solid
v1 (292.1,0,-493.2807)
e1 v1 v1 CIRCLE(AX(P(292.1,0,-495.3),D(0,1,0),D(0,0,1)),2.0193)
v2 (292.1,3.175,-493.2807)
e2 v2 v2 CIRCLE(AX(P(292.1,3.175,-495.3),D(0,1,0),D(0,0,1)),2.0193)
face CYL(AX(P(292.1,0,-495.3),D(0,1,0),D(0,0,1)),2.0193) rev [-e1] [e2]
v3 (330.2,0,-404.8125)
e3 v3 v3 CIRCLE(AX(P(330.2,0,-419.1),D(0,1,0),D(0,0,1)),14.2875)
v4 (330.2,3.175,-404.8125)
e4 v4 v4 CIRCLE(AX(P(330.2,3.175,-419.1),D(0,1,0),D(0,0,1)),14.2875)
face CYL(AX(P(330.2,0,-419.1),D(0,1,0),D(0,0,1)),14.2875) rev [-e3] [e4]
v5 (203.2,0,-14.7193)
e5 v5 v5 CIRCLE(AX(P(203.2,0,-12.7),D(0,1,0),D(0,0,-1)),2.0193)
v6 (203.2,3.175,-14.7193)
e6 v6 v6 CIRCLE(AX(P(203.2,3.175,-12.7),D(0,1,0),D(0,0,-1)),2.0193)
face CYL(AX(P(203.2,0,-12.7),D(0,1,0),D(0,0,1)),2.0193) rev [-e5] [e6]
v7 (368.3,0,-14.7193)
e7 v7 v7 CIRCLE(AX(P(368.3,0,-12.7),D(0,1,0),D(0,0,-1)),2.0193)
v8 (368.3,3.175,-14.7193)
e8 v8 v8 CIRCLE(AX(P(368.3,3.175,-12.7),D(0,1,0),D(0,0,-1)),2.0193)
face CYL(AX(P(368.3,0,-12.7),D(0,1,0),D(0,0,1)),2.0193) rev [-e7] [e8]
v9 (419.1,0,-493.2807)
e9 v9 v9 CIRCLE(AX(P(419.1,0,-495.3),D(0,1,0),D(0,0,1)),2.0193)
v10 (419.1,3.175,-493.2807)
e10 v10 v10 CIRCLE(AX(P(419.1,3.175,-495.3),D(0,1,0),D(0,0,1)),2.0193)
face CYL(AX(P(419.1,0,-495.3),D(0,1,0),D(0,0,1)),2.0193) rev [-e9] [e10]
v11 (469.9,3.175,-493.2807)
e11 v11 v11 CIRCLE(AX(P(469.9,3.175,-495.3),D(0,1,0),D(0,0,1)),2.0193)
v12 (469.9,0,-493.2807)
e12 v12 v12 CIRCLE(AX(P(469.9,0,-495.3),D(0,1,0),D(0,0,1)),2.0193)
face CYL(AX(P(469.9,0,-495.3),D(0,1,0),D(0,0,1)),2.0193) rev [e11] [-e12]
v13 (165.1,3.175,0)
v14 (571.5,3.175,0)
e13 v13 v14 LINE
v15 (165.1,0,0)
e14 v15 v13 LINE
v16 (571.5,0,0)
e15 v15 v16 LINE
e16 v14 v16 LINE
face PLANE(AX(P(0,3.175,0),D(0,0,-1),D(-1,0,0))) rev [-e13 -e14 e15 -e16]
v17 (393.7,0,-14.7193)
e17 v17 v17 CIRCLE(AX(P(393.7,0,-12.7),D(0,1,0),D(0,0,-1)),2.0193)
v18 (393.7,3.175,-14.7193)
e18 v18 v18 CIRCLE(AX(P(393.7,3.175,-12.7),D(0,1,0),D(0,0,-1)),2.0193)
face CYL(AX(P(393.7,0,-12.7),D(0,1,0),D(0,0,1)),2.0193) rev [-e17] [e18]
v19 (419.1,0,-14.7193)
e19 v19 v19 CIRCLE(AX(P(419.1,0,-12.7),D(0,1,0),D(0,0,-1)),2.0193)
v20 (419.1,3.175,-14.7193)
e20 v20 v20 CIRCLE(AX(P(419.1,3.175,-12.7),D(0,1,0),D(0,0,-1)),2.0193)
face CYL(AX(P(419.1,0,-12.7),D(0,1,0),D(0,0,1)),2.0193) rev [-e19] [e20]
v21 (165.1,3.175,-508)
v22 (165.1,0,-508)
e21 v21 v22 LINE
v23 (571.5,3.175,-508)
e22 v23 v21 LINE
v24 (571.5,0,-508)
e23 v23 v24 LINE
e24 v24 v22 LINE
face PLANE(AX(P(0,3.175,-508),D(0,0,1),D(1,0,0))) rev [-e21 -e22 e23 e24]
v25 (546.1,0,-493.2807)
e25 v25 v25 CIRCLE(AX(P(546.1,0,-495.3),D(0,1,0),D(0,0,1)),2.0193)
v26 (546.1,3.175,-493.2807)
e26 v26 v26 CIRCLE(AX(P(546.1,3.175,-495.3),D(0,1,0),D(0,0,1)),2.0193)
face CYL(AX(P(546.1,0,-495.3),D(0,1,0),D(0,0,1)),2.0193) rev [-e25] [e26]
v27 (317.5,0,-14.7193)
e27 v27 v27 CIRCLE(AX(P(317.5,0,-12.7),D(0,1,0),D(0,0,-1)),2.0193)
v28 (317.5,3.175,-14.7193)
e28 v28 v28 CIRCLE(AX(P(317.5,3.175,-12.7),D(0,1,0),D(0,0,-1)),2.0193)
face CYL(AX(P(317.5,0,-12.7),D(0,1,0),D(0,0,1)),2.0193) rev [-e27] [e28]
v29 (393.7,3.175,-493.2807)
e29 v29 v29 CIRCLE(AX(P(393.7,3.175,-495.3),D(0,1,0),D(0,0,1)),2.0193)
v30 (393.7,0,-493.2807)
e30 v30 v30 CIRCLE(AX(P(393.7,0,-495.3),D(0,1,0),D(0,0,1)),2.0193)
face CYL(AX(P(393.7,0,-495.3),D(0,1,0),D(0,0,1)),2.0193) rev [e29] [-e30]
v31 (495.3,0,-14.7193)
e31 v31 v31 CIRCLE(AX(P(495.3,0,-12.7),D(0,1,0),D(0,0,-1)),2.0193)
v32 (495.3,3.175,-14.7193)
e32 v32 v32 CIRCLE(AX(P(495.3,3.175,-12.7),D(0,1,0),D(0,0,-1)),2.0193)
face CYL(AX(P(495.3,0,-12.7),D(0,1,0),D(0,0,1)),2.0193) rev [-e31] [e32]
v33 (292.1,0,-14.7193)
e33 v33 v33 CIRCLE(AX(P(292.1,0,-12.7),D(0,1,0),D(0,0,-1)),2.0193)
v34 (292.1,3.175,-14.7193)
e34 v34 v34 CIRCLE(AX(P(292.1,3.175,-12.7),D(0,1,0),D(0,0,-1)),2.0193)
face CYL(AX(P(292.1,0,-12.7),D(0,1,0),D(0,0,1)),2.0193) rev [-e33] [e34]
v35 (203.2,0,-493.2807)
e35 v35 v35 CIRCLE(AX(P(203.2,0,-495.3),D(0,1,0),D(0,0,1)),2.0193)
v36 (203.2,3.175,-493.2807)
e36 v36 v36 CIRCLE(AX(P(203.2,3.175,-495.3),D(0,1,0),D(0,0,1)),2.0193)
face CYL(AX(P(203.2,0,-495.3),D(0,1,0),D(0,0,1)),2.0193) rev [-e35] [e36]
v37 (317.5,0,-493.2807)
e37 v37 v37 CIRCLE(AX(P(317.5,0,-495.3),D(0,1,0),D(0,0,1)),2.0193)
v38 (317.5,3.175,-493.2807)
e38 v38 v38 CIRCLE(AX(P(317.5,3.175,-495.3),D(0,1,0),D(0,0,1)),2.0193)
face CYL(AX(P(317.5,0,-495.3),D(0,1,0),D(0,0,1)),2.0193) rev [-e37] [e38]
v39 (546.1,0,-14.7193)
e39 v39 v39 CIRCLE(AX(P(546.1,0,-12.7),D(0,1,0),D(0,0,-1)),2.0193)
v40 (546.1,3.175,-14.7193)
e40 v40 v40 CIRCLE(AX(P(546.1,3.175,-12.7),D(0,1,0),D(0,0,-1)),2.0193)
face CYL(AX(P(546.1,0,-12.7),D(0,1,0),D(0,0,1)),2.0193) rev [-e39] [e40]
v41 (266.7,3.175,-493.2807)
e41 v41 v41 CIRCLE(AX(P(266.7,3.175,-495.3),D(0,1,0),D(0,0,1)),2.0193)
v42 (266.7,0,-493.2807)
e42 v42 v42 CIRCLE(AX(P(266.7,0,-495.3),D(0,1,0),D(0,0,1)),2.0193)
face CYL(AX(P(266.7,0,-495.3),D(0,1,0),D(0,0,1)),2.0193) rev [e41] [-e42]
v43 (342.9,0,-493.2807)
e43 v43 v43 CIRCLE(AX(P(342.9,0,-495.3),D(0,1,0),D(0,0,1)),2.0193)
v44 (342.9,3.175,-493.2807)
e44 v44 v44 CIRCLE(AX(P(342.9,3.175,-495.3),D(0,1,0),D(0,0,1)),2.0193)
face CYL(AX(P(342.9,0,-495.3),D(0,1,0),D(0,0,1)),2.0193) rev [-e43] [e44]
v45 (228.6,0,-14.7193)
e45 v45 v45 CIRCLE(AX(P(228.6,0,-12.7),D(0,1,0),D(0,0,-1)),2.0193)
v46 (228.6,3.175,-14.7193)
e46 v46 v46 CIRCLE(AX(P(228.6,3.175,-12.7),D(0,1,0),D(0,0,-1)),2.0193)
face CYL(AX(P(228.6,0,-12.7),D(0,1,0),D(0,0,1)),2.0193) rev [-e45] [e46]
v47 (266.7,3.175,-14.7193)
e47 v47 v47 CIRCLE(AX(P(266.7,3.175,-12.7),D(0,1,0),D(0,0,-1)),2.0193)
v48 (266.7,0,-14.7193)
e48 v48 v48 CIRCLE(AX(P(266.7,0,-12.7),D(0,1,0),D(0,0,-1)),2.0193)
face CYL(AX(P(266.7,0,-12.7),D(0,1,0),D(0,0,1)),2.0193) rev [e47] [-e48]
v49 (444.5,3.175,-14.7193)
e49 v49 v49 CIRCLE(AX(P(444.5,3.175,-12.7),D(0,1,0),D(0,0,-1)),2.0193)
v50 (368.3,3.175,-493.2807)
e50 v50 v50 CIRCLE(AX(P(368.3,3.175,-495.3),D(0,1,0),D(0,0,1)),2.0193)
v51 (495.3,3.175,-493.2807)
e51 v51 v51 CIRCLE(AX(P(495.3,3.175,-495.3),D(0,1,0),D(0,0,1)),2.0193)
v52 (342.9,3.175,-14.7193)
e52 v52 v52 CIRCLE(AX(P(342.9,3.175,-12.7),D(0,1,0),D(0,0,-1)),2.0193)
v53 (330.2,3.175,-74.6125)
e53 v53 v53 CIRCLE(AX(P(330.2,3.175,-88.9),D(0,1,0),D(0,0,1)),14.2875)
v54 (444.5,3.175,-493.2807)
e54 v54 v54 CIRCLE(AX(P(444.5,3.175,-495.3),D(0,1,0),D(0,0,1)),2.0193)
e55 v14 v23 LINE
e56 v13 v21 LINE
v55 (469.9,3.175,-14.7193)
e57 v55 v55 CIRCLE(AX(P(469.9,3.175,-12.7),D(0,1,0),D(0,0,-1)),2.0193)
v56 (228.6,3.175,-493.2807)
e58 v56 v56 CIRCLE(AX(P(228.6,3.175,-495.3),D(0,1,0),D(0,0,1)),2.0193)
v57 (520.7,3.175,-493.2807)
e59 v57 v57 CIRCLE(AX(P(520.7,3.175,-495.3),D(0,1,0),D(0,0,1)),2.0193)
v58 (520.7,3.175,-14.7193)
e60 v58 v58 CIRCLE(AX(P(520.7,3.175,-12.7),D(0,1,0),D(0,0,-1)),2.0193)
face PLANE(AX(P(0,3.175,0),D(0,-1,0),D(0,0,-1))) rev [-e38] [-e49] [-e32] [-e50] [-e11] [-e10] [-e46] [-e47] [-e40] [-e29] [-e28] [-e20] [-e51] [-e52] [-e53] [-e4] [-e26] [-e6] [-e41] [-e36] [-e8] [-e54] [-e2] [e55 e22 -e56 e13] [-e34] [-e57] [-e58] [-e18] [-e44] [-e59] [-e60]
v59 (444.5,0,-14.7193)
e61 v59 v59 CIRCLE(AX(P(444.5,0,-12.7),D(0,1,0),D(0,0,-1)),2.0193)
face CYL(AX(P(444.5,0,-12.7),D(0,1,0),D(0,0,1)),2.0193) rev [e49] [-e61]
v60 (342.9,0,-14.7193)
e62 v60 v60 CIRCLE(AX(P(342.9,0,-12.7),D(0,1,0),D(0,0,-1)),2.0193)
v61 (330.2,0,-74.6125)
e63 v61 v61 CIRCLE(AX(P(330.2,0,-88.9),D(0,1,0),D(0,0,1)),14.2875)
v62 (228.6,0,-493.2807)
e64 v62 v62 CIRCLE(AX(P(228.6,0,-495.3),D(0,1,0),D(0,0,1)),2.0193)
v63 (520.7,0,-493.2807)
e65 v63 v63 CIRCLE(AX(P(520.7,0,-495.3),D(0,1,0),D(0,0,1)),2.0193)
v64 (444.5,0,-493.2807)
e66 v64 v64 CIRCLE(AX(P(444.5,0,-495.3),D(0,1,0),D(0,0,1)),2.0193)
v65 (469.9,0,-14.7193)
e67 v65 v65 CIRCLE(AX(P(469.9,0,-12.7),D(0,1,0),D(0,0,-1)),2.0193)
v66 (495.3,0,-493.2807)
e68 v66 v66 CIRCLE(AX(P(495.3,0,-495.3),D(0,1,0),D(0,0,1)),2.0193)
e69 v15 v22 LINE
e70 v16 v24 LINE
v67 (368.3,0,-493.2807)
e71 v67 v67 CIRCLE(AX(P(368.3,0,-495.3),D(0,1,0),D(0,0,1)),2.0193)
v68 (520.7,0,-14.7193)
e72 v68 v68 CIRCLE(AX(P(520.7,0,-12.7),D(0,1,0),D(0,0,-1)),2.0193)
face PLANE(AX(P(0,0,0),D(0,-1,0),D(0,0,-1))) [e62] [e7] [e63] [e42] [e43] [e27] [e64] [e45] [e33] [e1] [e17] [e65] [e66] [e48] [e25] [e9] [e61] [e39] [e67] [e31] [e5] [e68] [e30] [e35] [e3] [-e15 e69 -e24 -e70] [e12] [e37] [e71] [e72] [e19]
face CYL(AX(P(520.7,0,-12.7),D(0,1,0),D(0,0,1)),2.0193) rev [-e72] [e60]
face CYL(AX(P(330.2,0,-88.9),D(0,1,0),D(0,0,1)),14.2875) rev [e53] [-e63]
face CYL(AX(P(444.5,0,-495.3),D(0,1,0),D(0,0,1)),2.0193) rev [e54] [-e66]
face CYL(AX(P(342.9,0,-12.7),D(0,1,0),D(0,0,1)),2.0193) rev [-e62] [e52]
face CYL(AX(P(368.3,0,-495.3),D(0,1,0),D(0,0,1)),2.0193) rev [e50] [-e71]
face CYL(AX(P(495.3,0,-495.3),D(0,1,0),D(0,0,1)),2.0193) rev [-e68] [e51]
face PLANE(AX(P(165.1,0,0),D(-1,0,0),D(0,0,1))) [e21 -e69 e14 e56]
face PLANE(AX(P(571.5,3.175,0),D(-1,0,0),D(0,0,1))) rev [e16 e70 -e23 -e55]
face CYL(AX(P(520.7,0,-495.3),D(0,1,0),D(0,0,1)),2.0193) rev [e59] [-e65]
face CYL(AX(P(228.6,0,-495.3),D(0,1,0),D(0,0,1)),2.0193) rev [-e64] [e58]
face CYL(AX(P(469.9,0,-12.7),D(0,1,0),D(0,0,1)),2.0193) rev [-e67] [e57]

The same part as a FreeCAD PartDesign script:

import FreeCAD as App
import Part
import Sketcher
Q = App.Units.Quantity


def add_polygon(sketch, points):
    """Adds a closed chain of lines whose ends are joined by coincident constraints."""
    first, n = sketch.GeometryCount, len(points)
    for a, b in zip(points, points[1:] + points[:1]):
        sketch.addGeometry(Part.LineSegment(App.Vector(*a, 0), App.Vector(*b, 0)), False)
    for i in range(n):
        sketch.addConstraint(Sketcher.Constraint("Coincident", first + i, 2, first + (i + 1) % n, 1))

doc = App.newDocument("Part")
body = doc.addObject("PartDesign::Body", "Body")

sketch1 = body.newObject("Sketcher::SketchObject", "Sketch")
sketch1.AttachmentSupport = (doc.getObject("XZ_Plane"), [""])
sketch1.MapMode = "FlatFace"
add_polygon(sketch1, [(0, -508), (0, 0), (571.5, 0), (571.5, -508)])
sketch1.addConstraint(Sketcher.Constraint("Vertical", 0))
sketch1.addConstraint(Sketcher.Constraint("Horizontal", 1))
sketch1.addConstraint(Sketcher.Constraint("Vertical", 2))
sketch1.addConstraint(Sketcher.Constraint("Horizontal", 3))
sketch1.addConstraint(Sketcher.Constraint("Coincident", 0, 2, -1, 1))
sketch1.addConstraint(Sketcher.Constraint("DistanceY", 0, 1, 0, 2, Q("20 in")))
sketch1.addConstraint(Sketcher.Constraint("DistanceX", 1, 1, 1, 2, Q("22.5 in")))
pad1 = body.newObject("PartDesign::Pad", "Pad")
pad1.Profile = sketch1
pad1.Length = Q("0.125 in")
pad1.Reversed = True

sketch2 = body.newObject("Sketcher::SketchObject", "Sketch001")
sketch2.AttachmentSupport = (doc.getObject("XZ_Plane"), [""])
sketch2.MapMode = "FlatFace"
sketch2.AttachmentOffset = App.Placement(App.Vector(0, 0, -0.125 * 25.4), App.Rotation())
sketch2.addGeometry(Part.Circle(App.Vector(330.2, -419.1, 0), App.Vector(0, 0, 1), 14.2875), False)
sketch2.addGeometry(Part.Circle(App.Vector(330.2, -88.9, 0), App.Vector(0, 0, 1), 14.2875), False)
sketch2.addConstraint(Sketcher.Constraint("Equal", 0, 1))
sketch2.addConstraint(Sketcher.Constraint("Vertical", 0, 3, 1, 3))
sketch2.addConstraint(Sketcher.Constraint("Diameter", 0, Q("1.125 in")))
sketch2.addConstraint(Sketcher.Constraint("DistanceX", -1, 1, 0, 3, Q("13 in")))
sketch2.addConstraint(Sketcher.Constraint("DistanceY", 0, 3, 1, 3, Q("13 in")))
sketch2.addConstraint(Sketcher.Constraint("DistanceY", 0, 3, -1, 1, Q("16.5 in")))
pocket1 = body.newObject("PartDesign::Pocket", "Pocket")
pocket1.Profile = sketch2
pocket1.Length = Q("0.125 in")
pocket1.Reversed = True

sketch3 = body.newObject("Sketcher::SketchObject", "Sketch002")
sketch3.AttachmentSupport = (doc.getObject("XZ_Plane"), [""])
sketch3.MapMode = "FlatFace"
sketch3.AttachmentOffset = App.Placement(App.Vector(0, 0, -0.125 * 25.4), App.Rotation())
sketch3.addGeometry(Part.Circle(App.Vector(546.1, -495.3, 0), App.Vector(0, 0, 1), 2.0193), False)
sketch3.addGeometry(Part.Circle(App.Vector(520.7, -495.3, 0), App.Vector(0, 0, 1), 2.0193), False)
sketch3.addGeometry(Part.Circle(App.Vector(495.3, -495.3, 0), App.Vector(0, 0, 1), 2.0193), False)
sketch3.addGeometry(Part.Circle(App.Vector(469.9, -495.3, 0), App.Vector(0, 0, 1), 2.0193), False)
sketch3.addGeometry(Part.Circle(App.Vector(444.5, -495.3, 0), App.Vector(0, 0, 1), 2.0193), False)
sketch3.addGeometry(Part.Circle(App.Vector(419.1, -495.3, 0), App.Vector(0, 0, 1), 2.0193), False)
sketch3.addGeometry(Part.Circle(App.Vector(393.7, -495.3, 0), App.Vector(0, 0, 1), 2.0193), False)
sketch3.addGeometry(Part.Circle(App.Vector(368.3, -495.3, 0), App.Vector(0, 0, 1), 2.0193), False)
sketch3.addGeometry(Part.Circle(App.Vector(342.9, -495.3, 0), App.Vector(0, 0, 1), 2.0193), False)
sketch3.addGeometry(Part.Circle(App.Vector(317.5, -495.3, 0), App.Vector(0, 0, 1), 2.0193), False)
sketch3.addGeometry(Part.Circle(App.Vector(292.1, -495.3, 0), App.Vector(0, 0, 1), 2.0193), False)
sketch3.addGeometry(Part.Circle(App.Vector(266.7, -495.3, 0), App.Vector(0, 0, 1), 2.0193), False)
sketch3.addGeometry(Part.Circle(App.Vector(228.6, -495.3, 0), App.Vector(0, 0, 1), 2.0193), False)
sketch3.addGeometry(Part.Circle(App.Vector(203.2, -495.3, 0), App.Vector(0, 0, 1), 2.0193), False)
sketch3.addGeometry(Part.Circle(App.Vector(203.2, -12.7, 0), App.Vector(0, 0, 1), 2.0193), False)
sketch3.addGeometry(Part.Circle(App.Vector(228.6, -12.7, 0), App.Vector(0, 0, 1), 2.0193), False)
sketch3.addGeometry(Part.Circle(App.Vector(266.7, -12.7, 0), App.Vector(0, 0, 1), 2.0193), False)
sketch3.addGeometry(Part.Circle(App.Vector(292.1, -12.7, 0), App.Vector(0, 0, 1), 2.0193), False)
sketch3.addGeometry(Part.Circle(App.Vector(317.5, -12.7, 0), App.Vector(0, 0, 1), 2.0193), False)
sketch3.addGeometry(Part.Circle(App.Vector(342.9, -12.7, 0), App.Vector(0, 0, 1), 2.0193), False)
sketch3.addGeometry(Part.Circle(App.Vector(368.3, -12.7, 0), App.Vector(0, 0, 1), 2.0193), False)
sketch3.addGeometry(Part.Circle(App.Vector(393.7, -12.7, 0), App.Vector(0, 0, 1), 2.0193), False)
sketch3.addGeometry(Part.Circle(App.Vector(419.1, -12.7, 0), App.Vector(0, 0, 1), 2.0193), False)
sketch3.addGeometry(Part.Circle(App.Vector(444.5, -12.7, 0), App.Vector(0, 0, 1), 2.0193), False)
sketch3.addGeometry(Part.Circle(App.Vector(469.9, -12.7, 0), App.Vector(0, 0, 1), 2.0193), False)
sketch3.addGeometry(Part.Circle(App.Vector(495.3, -12.7, 0), App.Vector(0, 0, 1), 2.0193), False)
sketch3.addGeometry(Part.Circle(App.Vector(520.7, -12.7, 0), App.Vector(0, 0, 1), 2.0193), False)
sketch3.addGeometry(Part.Circle(App.Vector(546.1, -12.7, 0), App.Vector(0, 0, 1), 2.0193), False)
sketch3.addConstraint(Sketcher.Constraint("Equal", 0, 1))
sketch3.addConstraint(Sketcher.Constraint("Equal", 1, 2))
sketch3.addConstraint(Sketcher.Constraint("Equal", 2, 3))
sketch3.addConstraint(Sketcher.Constraint("Equal", 3, 4))
sketch3.addConstraint(Sketcher.Constraint("Equal", 4, 5))
sketch3.addConstraint(Sketcher.Constraint("Equal", 5, 6))
sketch3.addConstraint(Sketcher.Constraint("Equal", 6, 7))
sketch3.addConstraint(Sketcher.Constraint("Equal", 7, 8))
sketch3.addConstraint(Sketcher.Constraint("Equal", 8, 9))
sketch3.addConstraint(Sketcher.Constraint("Equal", 9, 10))
sketch3.addConstraint(Sketcher.Constraint("Equal", 10, 11))
sketch3.addConstraint(Sketcher.Constraint("Equal", 11, 12))
sketch3.addConstraint(Sketcher.Constraint("Equal", 12, 13))
sketch3.addConstraint(Sketcher.Constraint("Equal", 13, 14))
sketch3.addConstraint(Sketcher.Constraint("Equal", 14, 15))
sketch3.addConstraint(Sketcher.Constraint("Equal", 15, 16))
sketch3.addConstraint(Sketcher.Constraint("Equal", 16, 17))
sketch3.addConstraint(Sketcher.Constraint("Equal", 17, 18))
sketch3.addConstraint(Sketcher.Constraint("Equal", 18, 19))
sketch3.addConstraint(Sketcher.Constraint("Equal", 19, 20))
sketch3.addConstraint(Sketcher.Constraint("Equal", 20, 21))
sketch3.addConstraint(Sketcher.Constraint("Equal", 21, 22))
sketch3.addConstraint(Sketcher.Constraint("Equal", 22, 23))
sketch3.addConstraint(Sketcher.Constraint("Equal", 23, 24))
sketch3.addConstraint(Sketcher.Constraint("Equal", 24, 25))
sketch3.addConstraint(Sketcher.Constraint("Equal", 25, 26))
sketch3.addConstraint(Sketcher.Constraint("Equal", 26, 27))
sketch3.addConstraint(Sketcher.Constraint("Horizontal", 0, 3, 1, 3))
sketch3.addConstraint(Sketcher.Constraint("Horizontal", 1, 3, 2, 3))
sketch3.addConstraint(Sketcher.Constraint("Horizontal", 2, 3, 3, 3))
sketch3.addConstraint(Sketcher.Constraint("Horizontal", 3, 3, 4, 3))
sketch3.addConstraint(Sketcher.Constraint("Horizontal", 4, 3, 5, 3))
sketch3.addConstraint(Sketcher.Constraint("Horizontal", 5, 3, 6, 3))
sketch3.addConstraint(Sketcher.Constraint("Horizontal", 6, 3, 7, 3))
sketch3.addConstraint(Sketcher.Constraint("Horizontal", 7, 3, 8, 3))
sketch3.addConstraint(Sketcher.Constraint("Horizontal", 8, 3, 9, 3))
sketch3.addConstraint(Sketcher.Constraint("Horizontal", 9, 3, 10, 3))
sketch3.addConstraint(Sketcher.Constraint("Horizontal", 10, 3, 11, 3))
sketch3.addConstraint(Sketcher.Constraint("Horizontal", 11, 3, 12, 3))
sketch3.addConstraint(Sketcher.Constraint("Horizontal", 12, 3, 13, 3))
sketch3.addConstraint(Sketcher.Constraint("Horizontal", 14, 3, 15, 3))
sketch3.addConstraint(Sketcher.Constraint("Horizontal", 15, 3, 16, 3))
sketch3.addConstraint(Sketcher.Constraint("Horizontal", 16, 3, 17, 3))
sketch3.addConstraint(Sketcher.Constraint("Horizontal", 17, 3, 18, 3))
sketch3.addConstraint(Sketcher.Constraint("Horizontal", 18, 3, 19, 3))
sketch3.addConstraint(Sketcher.Constraint("Horizontal", 19, 3, 20, 3))
sketch3.addConstraint(Sketcher.Constraint("Horizontal", 20, 3, 21, 3))
sketch3.addConstraint(Sketcher.Constraint("Horizontal", 21, 3, 22, 3))
sketch3.addConstraint(Sketcher.Constraint("Horizontal", 22, 3, 23, 3))
sketch3.addConstraint(Sketcher.Constraint("Horizontal", 23, 3, 24, 3))
sketch3.addConstraint(Sketcher.Constraint("Horizontal", 24, 3, 25, 3))
sketch3.addConstraint(Sketcher.Constraint("Horizontal", 25, 3, 26, 3))
sketch3.addConstraint(Sketcher.Constraint("Horizontal", 26, 3, 27, 3))
sketch3.addConstraint(Sketcher.Constraint("Vertical", 13, 3, 14, 3))
sketch3.addConstraint(Sketcher.Constraint("Vertical", 12, 3, 15, 3))
sketch3.addConstraint(Sketcher.Constraint("Vertical", 11, 3, 16, 3))
sketch3.addConstraint(Sketcher.Constraint("Vertical", 10, 3, 17, 3))
sketch3.addConstraint(Sketcher.Constraint("Vertical", 9, 3, 18, 3))
sketch3.addConstraint(Sketcher.Constraint("Vertical", 8, 3, 19, 3))
sketch3.addConstraint(Sketcher.Constraint("Vertical", 7, 3, 20, 3))
sketch3.addConstraint(Sketcher.Constraint("Vertical", 6, 3, 21, 3))
sketch3.addConstraint(Sketcher.Constraint("Vertical", 5, 3, 22, 3))
sketch3.addConstraint(Sketcher.Constraint("Vertical", 4, 3, 23, 3))
sketch3.addConstraint(Sketcher.Constraint("Vertical", 3, 3, 24, 3))
sketch3.addConstraint(Sketcher.Constraint("Vertical", 2, 3, 25, 3))
sketch3.addConstraint(Sketcher.Constraint("Vertical", 1, 3, 26, 3))
sketch3.addConstraint(Sketcher.Constraint("Vertical", 0, 3, 27, 3))
sketch3.addConstraint(Sketcher.Constraint("Diameter", 0, Q("0.159 in")))
sketch3.addConstraint(Sketcher.Constraint("DistanceX", -1, 1, 12, 3, Q("9 in")))
sketch3.addConstraint(Sketcher.Constraint("DistanceX", -1, 1, 13, 3, Q("8 in")))
sketch3.addConstraint(Sketcher.Constraint("DistanceX", 1, 3, 0, 3, Q("1 in")))
sketch3.addConstraint(Sketcher.Constraint("DistanceX", 2, 3, 1, 3, Q("1 in")))
sketch3.addConstraint(Sketcher.Constraint("DistanceX", 3, 3, 2, 3, Q("1 in")))
sketch3.addConstraint(Sketcher.Constraint("DistanceX", 4, 3, 3, 3, Q("1 in")))
sketch3.addConstraint(Sketcher.Constraint("DistanceX", 5, 3, 4, 3, Q("1 in")))
sketch3.addConstraint(Sketcher.Constraint("DistanceX", 6, 3, 5, 3, Q("1 in")))
sketch3.addConstraint(Sketcher.Constraint("DistanceX", 7, 3, 6, 3, Q("1 in")))
sketch3.addConstraint(Sketcher.Constraint("DistanceX", 8, 3, 7, 3, Q("1 in")))
sketch3.addConstraint(Sketcher.Constraint("DistanceX", 9, 3, 8, 3, Q("1 in")))
sketch3.addConstraint(Sketcher.Constraint("DistanceX", 10, 3, 9, 3, Q("1 in")))
sketch3.addConstraint(Sketcher.Constraint("DistanceX", 11, 3, 10, 3, Q("1 in")))
sketch3.addConstraint(Sketcher.Constraint("DistanceY", 13, 3, 14, 3, Q("19 in")))
sketch3.addConstraint(Sketcher.Constraint("DistanceX", -1, 1, 0, 3, Q("21.5 in")))
sketch3.addConstraint(Sketcher.Constraint("DistanceY", 0, 3, -1, 1, Q("19.5 in")))
pocket2 = body.newObject("PartDesign::Pocket", "Pocket001")
pocket2.Profile = sketch3
pocket2.Type = "ThroughAll"
pocket2.Midplane = True

sketch4 = body.newObject("Sketcher::SketchObject", "Sketch003")
sketch4.AttachmentSupport = (doc.getObject("YZ_Plane"), [""])
sketch4.MapMode = "FlatFace"
add_polygon(sketch4, [(71.228079, -567.430978), (-17.80702, -567.430978), (-17.80702, 52.148559), (71.228079, 52.148559)])
sketch4.addConstraint(Sketcher.Constraint("Horizontal", 0))
sketch4.addConstraint(Sketcher.Constraint("Vertical", 1))
sketch4.addConstraint(Sketcher.Constraint("Horizontal", 2))
sketch4.addConstraint(Sketcher.Constraint("Vertical", 3))
sketch4.addConstraint(Sketcher.Constraint("DistanceX", 0, 2, 0, 1, 89.035098))
sketch4.addConstraint(Sketcher.Constraint("DistanceY", 1, 1, 1, 2, 619.579537))
sketch4.addConstraint(Sketcher.Constraint("DistanceX", 0, 2, -1, 1, 17.80702))
sketch4.addConstraint(Sketcher.Constraint("DistanceY", -1, 1, 1, 2, 52.148559))
pocket3 = body.newObject("PartDesign::Pocket", "Pocket002")
pocket3.Profile = sketch4
pocket3.Length = Q("6.5 in")
pocket3.Reversed = True

doc.recompute()
